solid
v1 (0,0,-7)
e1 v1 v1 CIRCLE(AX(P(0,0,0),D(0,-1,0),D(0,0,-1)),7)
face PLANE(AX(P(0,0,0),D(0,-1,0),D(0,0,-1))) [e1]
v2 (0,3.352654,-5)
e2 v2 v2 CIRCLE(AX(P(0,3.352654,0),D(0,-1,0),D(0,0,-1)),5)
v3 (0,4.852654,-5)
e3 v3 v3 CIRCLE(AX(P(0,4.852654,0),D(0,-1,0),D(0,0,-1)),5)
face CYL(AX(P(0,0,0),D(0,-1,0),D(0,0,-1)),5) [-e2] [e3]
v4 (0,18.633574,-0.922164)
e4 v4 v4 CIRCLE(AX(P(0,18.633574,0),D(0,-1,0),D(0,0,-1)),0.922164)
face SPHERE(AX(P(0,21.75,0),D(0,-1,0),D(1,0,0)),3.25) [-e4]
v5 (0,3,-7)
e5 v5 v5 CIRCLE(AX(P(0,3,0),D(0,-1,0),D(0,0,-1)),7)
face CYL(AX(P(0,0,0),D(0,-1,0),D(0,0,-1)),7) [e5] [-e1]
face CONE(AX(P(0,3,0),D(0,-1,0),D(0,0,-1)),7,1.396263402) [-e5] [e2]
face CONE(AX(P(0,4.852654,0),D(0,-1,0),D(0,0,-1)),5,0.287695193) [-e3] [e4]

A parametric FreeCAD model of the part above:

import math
import FreeCAD as App
import Part
import Sketcher
from FreeCAD import Vector
Q = App.Units.Quantity

doc = App.newDocument("Part")
body = doc.addObject("PartDesign::Body", "Body")

# Sketch on XY plane
sketch1 = doc.addObject("Sketcher::SketchObject", "Sketch")
body.addObject(sketch1)
sketch1.AttachmentSupport = (doc.XY_Plane, [""])
sketch1.MapMode = "FlatFace"
sketch1.addGeometry([
    Part.LineSegment(Vector(0, 25, 0), Vector(0, 0, 0)),  # 0
    Part.LineSegment(Vector(0, 0, 0), Vector(7, 0, 0)),  # 1
    Part.LineSegment(Vector(7, 0, 0), Vector(7, 3, 0)),  # 2
    Part.LineSegment(Vector(7, 3, 0), Vector(5, 3.352654, 0)),  # 3
    Part.LineSegment(Vector(5, 3.352654, 0), Vector(5, 4.852654, 0)),  # 4
    Part.LineSegment(Vector(5, 4.852654, 0), Vector(0.922164, 18.633574, 0)),  # 5
    Part.ArcOfCircle(Part.Circle(Vector(0, 21.75, 0), Vector(0, 0, 1), 3.25), math.radians(-73.51628), math.radians(90)),  # 6
], False)
sketch1.addConstraint([
    Sketcher.Constraint("Coincident", 0, 2, 1, 1),
    Sketcher.Constraint("Coincident", 1, 2, 2, 1),
    Sketcher.Constraint("Coincident", 2, 2, 3, 1),
    Sketcher.Constraint("Coincident", 3, 2, 4, 1),
    Sketcher.Constraint("Coincident", 4, 2, 5, 1),
    Sketcher.Constraint("Coincident", 5, 2, 6, 1),
    Sketcher.Constraint("Coincident", 6, 2, 0, 1),
    Sketcher.Constraint("Vertical", 0),
    Sketcher.Constraint("Horizontal", 1),
    Sketcher.Constraint("Vertical", 2),
    Sketcher.Constraint("Vertical", 4),
    Sketcher.Constraint("Coincident", 0, 2, -1, 1),
    Sketcher.Constraint("PointOnObject", 6, 3, -2),
    Sketcher.Constraint("DistanceX", 1, 1, 1, 2, Q("7 mm")),
    Sketcher.Constraint("DistanceY", 0, 2, 0, 1, Q("25 mm")),
    Sketcher.Constraint("DistanceY", 2, 1, 2, 2, Q("3 mm")),
    Sketcher.Constraint("Angle", 3, Q("170 deg")),
    Sketcher.Constraint("Radius", 6, Q("3.25 mm")),
    Sketcher.Constraint("DistanceY", 4, 1, 4, 2, Q("1.5 mm")),
    Sketcher.Constraint("DistanceX", -1, 1, 3, 2, Q("5 mm")),
    Sketcher.Constraint("DistanceY", 4, 2, 5, 2, Q("13.78092 mm")),
])
revolution = doc.addObject("PartDesign::Revolution", "Revolution")
body.addObject(revolution)
revolution.Profile = sketch1
revolution.ReferenceAxis = (sketch1, ["V_Axis"])
revolution.Angle = 360

doc.recompute()
